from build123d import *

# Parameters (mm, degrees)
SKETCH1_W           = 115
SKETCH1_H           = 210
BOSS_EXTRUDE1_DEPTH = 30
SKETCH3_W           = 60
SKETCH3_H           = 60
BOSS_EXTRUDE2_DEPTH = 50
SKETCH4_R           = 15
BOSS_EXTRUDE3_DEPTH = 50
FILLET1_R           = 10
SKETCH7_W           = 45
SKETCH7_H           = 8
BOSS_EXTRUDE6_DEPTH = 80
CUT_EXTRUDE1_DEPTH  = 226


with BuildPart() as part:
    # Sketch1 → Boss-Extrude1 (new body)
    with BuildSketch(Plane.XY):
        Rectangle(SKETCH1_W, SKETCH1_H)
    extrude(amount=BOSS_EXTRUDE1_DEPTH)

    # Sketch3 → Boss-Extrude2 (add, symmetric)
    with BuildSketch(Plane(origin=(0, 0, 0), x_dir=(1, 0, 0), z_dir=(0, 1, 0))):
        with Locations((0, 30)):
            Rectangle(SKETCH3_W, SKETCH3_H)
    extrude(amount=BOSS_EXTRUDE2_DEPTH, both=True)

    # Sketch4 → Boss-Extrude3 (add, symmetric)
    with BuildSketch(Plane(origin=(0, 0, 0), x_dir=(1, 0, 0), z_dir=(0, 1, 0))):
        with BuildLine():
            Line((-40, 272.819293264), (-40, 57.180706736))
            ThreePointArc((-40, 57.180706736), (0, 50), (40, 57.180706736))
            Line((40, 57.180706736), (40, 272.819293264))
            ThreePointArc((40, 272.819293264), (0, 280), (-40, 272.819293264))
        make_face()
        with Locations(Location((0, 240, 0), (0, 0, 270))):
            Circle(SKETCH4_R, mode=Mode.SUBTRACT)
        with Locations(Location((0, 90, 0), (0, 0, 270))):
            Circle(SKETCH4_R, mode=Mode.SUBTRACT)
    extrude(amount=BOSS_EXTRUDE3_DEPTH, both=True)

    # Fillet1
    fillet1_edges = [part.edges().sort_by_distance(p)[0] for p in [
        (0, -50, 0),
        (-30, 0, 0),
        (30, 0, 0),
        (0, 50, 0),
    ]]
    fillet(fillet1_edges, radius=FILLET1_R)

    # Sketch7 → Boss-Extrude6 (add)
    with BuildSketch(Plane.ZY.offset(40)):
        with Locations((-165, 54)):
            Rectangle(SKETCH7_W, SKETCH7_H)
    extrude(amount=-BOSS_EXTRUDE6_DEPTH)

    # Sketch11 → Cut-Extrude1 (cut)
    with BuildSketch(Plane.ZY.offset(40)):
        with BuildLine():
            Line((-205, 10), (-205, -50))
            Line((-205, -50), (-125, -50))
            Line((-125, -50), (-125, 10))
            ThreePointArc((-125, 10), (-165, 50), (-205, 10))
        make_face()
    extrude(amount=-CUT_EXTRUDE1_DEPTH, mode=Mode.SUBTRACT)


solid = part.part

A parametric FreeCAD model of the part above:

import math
import FreeCAD as App
import Part
import Sketcher

V = App.Vector
Q = App.Units.Quantity


def edges_at(feature, points):
    """Names of the edges that pass closest to the given points."""
    edges = feature.Shape.Edges
    near = lambda p: min(range(len(edges)), key=lambda i: edges[i].distToShape(Part.Vertex(*p))[0])
    return sorted({f"Edge{near(p) + 1}" for p in points})

doc = App.newDocument("Part")
body = doc.addObject("PartDesign::Body", "Body")

# Sketch on XY plane
sketch1 = body.newObject("Sketcher::SketchObject", "Sketch")
sketch1.AttachmentSupport = (doc.getObject("XY_Plane"), [""])
sketch1.MapMode = "FlatFace"
sketch1.addGeometry([
    Part.LineSegment(V(-57.5, 105, 0), V(-57.5, -105, 0)),
    Part.LineSegment(V(-57.5, -105, 0), V(57.5, -105, 0)),
    Part.LineSegment(V(57.5, -105, 0), V(57.5, 105, 0)),
    Part.LineSegment(V(57.5, 105, 0), V(-57.5, 105, 0)),
], False)
sketch1.addConstraint([
    Sketcher.Constraint("Coincident", 0, 2, 1, 1),
    Sketcher.Constraint("Coincident", 1, 2, 2, 1),
    Sketcher.Constraint("Coincident", 2, 2, 3, 1),
    Sketcher.Constraint("Coincident", 3, 2, 0, 1),
    Sketcher.Constraint("Vertical", 0),
    Sketcher.Constraint("Horizontal", 1),
    Sketcher.Constraint("Vertical", 2),
    Sketcher.Constraint("Horizontal", 3),
    Sketcher.Constraint("Symmetric", 0, 2, 2, 2, -1, 1),
    Sketcher.Constraint("DistanceX", 1, 1, 1, 2, Q("115 mm")),
    Sketcher.Constraint("DistanceY", 0, 2, 0, 1, Q("210 mm")),
])
pad1 = body.newObject("PartDesign::Pad", "Pad")
pad1.Profile = sketch1
pad1.Length = 30

# Sketch on XZ plane
sketch2 = body.newObject("Sketcher::SketchObject", "Sketch001")
sketch2.AttachmentSupport = (doc.getObject("XZ_Plane"), [""])
sketch2.MapMode = "FlatFace"
sketch2.addGeometry([
    Part.LineSegment(V(-30, -60, 0), V(-30, 0, 0)),
    Part.LineSegment(V(-30, 0, 0), V(30, 0, 0)),
    Part.LineSegment(V(30, 0, 0), V(30, -60, 0)),
    Part.LineSegment(V(30, -60, 0), V(-30, -60, 0)),
], False)
sketch2.addConstraint([
    Sketcher.Constraint("Coincident", 0, 2, 1, 1),
    Sketcher.Constraint("Coincident", 1, 2, 2, 1),
    Sketcher.Constraint("Coincident", 2, 2, 3, 1),
    Sketcher.Constraint("Coincident", 3, 2, 0, 1),
    Sketcher.Constraint("Vertical", 0),
    Sketcher.Constraint("Horizontal", 1),
    Sketcher.Constraint("Vertical", 2),
    Sketcher.Constraint("Horizontal", 3),
    Sketcher.Constraint("Symmetric", 0, 2, 1, 2, -1, 1),
    Sketcher.Constraint("Equal", 3, 0),
    Sketcher.Constraint("DistanceX", 1, 1, 1, 2, Q("60 mm")),
])
pad2 = body.newObject("PartDesign::Pad", "Pad001")
pad2.Profile = sketch2
pad2.Length = 100
pad2.Midplane = True

# Sketch on XZ plane
sketch3 = body.newObject("Sketcher::SketchObject", "Sketch002")
sketch3.AttachmentSupport = (doc.getObject("XZ_Plane"), [""])
sketch3.MapMode = "FlatFace"
sketch3.addGeometry([
    Part.LineSegment(V(-40, -272.819293, 0), V(-40, -57.180707, 0)),  # 0
    Part.ArcOfCircle(Part.Circle(V(0, -165, 0), V(0, 0, 1), 115), math.radians(69.645594), math.radians(110.354406)),  # 1
    Part.LineSegment(V(40, -57.180707, 0), V(40, -272.819293, 0)),  # 2
    Part.ArcOfCircle(Part.Circle(V(0, -165, 0), V(0, 0, 1), 115), math.radians(-110.354406), math.radians(-69.645594)),  # 3
    Part.Circle(V(0, -90, 0), V(0, 0, 1), 15),  # 4
    Part.Circle(V(0, -240, 0), V(0, 0, 1), 15),  # 5
], False)
sketch3.addConstraint([
    Sketcher.Constraint("Coincident", 0, 2, 1, 2),
    Sketcher.Constraint("Coincident", 1, 1, 2, 1),
    Sketcher.Constraint("Coincident", 2, 2, 3, 2),
    Sketcher.Constraint("Coincident", 3, 1, 0, 1),
    Sketcher.Constraint("Vertical", 0),
    Sketcher.Constraint("Vertical", 2),
    Sketcher.Constraint("Coincident", 3, 3, 1, 3),
    Sketcher.Constraint("Equal", 1, 3),
    Sketcher.Constraint("Equal", 4, 5),
    Sketcher.Constraint("Symmetric", 0, 2, 1, 1, -2),
    Sketcher.Constraint("PointOnObject", 4, 3, -2),
    Sketcher.Constraint("PointOnObject", 5, 3, -2),
    Sketcher.Constraint("Diameter", 4, Q("30 mm")),
    Sketcher.Constraint("Radius", 1, Q("115 mm")),
    Sketcher.Constraint("DistanceY", 1, 3, -1, 1, Q("165 mm")),
    Sketcher.Constraint("DistanceY", 4, 3, -1, 1, Q("90 mm")),
    Sketcher.Constraint("DistanceY", 5, 3, -1, 1, Q("240 mm")),
    Sketcher.Constraint("DistanceX", 0, 2, -1, 1, Q("40 mm")),
])
pad3 = body.newObject("PartDesign::Pad", "Pad002")
pad3.Profile = sketch3
pad3.Length = 100
pad3.Midplane = True
doc.recompute()

fillet = body.newObject("PartDesign::Fillet", "Fillet")
fillet.Base = (pad3, edges_at(pad3, [
    (0, -50, 0),
    (-30, 0, 0),
    (30, 0, 0),
    (0, 50, 0),
]))
fillet.Radius = 10

# Sketch on YZ plane
sketch4 = body.newObject("Sketcher::SketchObject", "Sketch003")
sketch4.AttachmentSupport = (doc.getObject("YZ_Plane"), [""])
sketch4.MapMode = "FlatFace"
sketch4.AttachmentOffset = App.Placement(V(0, 0, -40), App.Rotation())
sketch4.addGeometry([
    Part.LineSegment(V(58, -187.5, 0), V(50, -187.5, 0)),
    Part.LineSegment(V(50, -187.5, 0), V(50, -142.5, 0)),
    Part.LineSegment(V(50, -142.5, 0), V(58, -142.5, 0)),
    Part.LineSegment(V(58, -142.5, 0), V(58, -187.5, 0)),
], False)
sketch4.addConstraint([
    Sketcher.Constraint("Coincident", 0, 2, 1, 1),
    Sketcher.Constraint("Coincident", 1, 2, 2, 1),
    Sketcher.Constraint("Coincident", 2, 2, 3, 1),
    Sketcher.Constraint("Coincident", 3, 2, 0, 1),
    Sketcher.Constraint("Horizontal", 0),
    Sketcher.Constraint("Vertical", 1),
    Sketcher.Constraint("Horizontal", 2),
    Sketcher.Constraint("Vertical", 3),
    Sketcher.Constraint("DistanceX", 0, 2, 0, 1, Q("8 mm")),
    Sketcher.Constraint("DistanceY", 1, 1, 1, 2, Q("45 mm")),
    Sketcher.Constraint("DistanceX", -1, 1, 0, 2, Q("50 mm")),
    Sketcher.Constraint("DistanceY", 0, 2, -1, 1, Q("187.5 mm")),
])
pad4 = body.newObject("PartDesign::Pad", "Pad003")
pad4.Profile = sketch4
pad4.Length = 80

# Sketch on YZ plane
sketch5 = body.newObject("Sketcher::SketchObject", "Sketch004")
sketch5.AttachmentSupport = (doc.getObject("YZ_Plane"), [""])
sketch5.MapMode = "FlatFace"
sketch5.AttachmentOffset = App.Placement(V(0, 0, -40), App.Rotation())
sketch5.addGeometry([
    Part.LineSegment(V(10, -205, 0), V(-50, -205, 0)),
    Part.LineSegment(V(-50, -205, 0), V(-50, -125, 0)),
    Part.LineSegment(V(-50, -125, 0), V(10, -125, 0)),
    Part.ArcOfCircle(Part.Circle(V(10, -165, 0), V(0, 0, 1), 40), math.radians(-90), math.radians(90)),
], False)
sketch5.addConstraint([
    Sketcher.Constraint("Coincident", 0, 2, 1, 1),
    Sketcher.Constraint("Coincident", 1, 2, 2, 1),
    Sketcher.Constraint("Tangent", 2, 2, 3, 2),
    Sketcher.Constraint("Tangent", 3, 1, 0, 1),
    Sketcher.Constraint("Horizontal", 0),
    Sketcher.Constraint("Vertical", 1),
    Sketcher.Constraint("Horizontal", 2),
    Sketcher.Constraint("Radius", 3, Q("40 mm")),
    Sketcher.Constraint("DistanceX", 0, 2, 0, 1, Q("60 mm")),
    Sketcher.Constraint("DistanceX", -1, 1, 3, 3, Q("10 mm")),
    Sketcher.Constraint("DistanceY", 3, 3, -1, 1, Q("165 mm")),
])
pocket1 = body.newObject("PartDesign::Pocket", "Pocket")
pocket1.Profile = sketch5
pocket1.Length = 226
pocket1.Reversed = True

doc.recompute()
